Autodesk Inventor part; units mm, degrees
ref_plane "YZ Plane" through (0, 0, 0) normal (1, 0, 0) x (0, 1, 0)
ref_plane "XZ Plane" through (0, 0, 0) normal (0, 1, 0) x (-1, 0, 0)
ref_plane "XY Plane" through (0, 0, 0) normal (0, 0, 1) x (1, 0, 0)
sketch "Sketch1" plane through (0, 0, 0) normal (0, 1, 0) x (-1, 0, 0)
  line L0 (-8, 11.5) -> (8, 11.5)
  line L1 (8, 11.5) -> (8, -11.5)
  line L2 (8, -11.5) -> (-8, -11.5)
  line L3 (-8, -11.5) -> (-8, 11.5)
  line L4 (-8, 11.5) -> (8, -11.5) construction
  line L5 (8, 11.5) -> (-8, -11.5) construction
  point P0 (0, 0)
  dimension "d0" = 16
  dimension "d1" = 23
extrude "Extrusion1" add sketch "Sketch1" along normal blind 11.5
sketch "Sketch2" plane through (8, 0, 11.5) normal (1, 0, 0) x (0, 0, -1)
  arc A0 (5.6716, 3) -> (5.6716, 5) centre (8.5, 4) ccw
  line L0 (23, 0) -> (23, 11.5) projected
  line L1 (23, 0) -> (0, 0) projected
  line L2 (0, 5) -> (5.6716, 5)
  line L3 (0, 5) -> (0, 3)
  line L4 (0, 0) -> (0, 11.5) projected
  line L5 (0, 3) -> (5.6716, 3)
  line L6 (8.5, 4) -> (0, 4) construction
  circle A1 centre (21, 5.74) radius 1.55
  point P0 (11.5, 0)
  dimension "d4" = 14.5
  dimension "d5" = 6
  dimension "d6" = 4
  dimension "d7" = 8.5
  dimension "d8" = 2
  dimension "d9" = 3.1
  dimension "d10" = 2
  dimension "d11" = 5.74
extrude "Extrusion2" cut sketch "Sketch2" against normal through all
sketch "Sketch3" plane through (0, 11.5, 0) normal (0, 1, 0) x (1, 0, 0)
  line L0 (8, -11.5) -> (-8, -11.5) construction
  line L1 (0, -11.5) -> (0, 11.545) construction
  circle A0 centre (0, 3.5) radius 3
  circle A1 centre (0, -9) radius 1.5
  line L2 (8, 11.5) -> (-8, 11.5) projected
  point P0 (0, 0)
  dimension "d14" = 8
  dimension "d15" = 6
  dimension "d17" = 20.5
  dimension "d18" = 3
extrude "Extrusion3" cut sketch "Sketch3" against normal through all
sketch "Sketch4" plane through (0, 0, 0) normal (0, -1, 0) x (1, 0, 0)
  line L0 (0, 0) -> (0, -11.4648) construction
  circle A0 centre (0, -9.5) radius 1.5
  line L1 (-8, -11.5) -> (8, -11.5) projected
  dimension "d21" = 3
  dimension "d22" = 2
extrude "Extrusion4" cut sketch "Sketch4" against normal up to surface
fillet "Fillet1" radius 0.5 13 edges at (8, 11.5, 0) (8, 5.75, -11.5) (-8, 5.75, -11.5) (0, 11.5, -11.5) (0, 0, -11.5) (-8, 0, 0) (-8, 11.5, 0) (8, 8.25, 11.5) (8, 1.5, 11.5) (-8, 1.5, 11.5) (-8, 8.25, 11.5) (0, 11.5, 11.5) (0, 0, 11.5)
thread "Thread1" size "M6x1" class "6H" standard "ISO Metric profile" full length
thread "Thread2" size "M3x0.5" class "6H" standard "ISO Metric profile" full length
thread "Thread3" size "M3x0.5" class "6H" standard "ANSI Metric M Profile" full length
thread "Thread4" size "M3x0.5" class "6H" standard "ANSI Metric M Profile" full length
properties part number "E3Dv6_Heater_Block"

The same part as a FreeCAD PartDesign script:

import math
import FreeCAD as App
import Part
import Sketcher
from FreeCAD import Vector
Q = App.Units.Quantity


def edges_at(feature, points):
    """Names of the edges that pass closest to the given points."""
    edges = feature.Shape.Edges
    near = lambda p: min(range(len(edges)), key=lambda i: edges[i].distToShape(Part.Vertex(*p))[0])
    return sorted({f"Edge{near(p) + 1}" for p in points})

doc = App.newDocument("Part")
params = doc.addObject("Spreadsheet::Sheet", "Params")
for row, (alias, value) in enumerate([
    ("sketch1_width", "16 mm"),
    ("sketch1_height", "23 mm"),
    ("pad1_length", "11.5 mm"),
    ("sketch2_radius", "3 mm"),
    ("sketch2_diameter", "3.1 mm"),
    ("sketch2_width", "2 mm"),
    ("sketch3_diameter", "6 mm"),
    ("sketch3_diameter2", "3 mm"),
    ("sketch4_diameter", "3 mm"),
    ("fillet_radius", "0.5 mm"),
], start=1):
    params.set(f"A{row}", alias)
    params.set(f"B{row}", "=" + value)
    params.setAlias(f"B{row}", alias)

body = doc.addObject("PartDesign::Body", "Body")

sketch1 = body.newObject("Sketcher::SketchObject", "Sketch")
sketch1.AttachmentSupport = (doc.getObject("XZ_Plane"), [""])
sketch1.MapMode = "FlatFace"
sketch1.addGeometry([
    Part.LineSegment(Vector(-8, 12, 0), Vector(8, 12, 0)),
    Part.LineSegment(Vector(8, 12, 0), Vector(8, -12, 0)),
    Part.LineSegment(Vector(8, -12, 0), Vector(-8, -12, 0)),
    Part.LineSegment(Vector(-8, -12, 0), Vector(-8, 12, 0)),
], False)
sketch1.addConstraint([
    Sketcher.Constraint("Coincident", 0, 2, 1, 1),
    Sketcher.Constraint("Coincident", 1, 2, 2, 1),
    Sketcher.Constraint("Coincident", 2, 2, 3, 1),
    Sketcher.Constraint("Coincident", 3, 2, 0, 1),
    Sketcher.Constraint("Horizontal", 0),
    Sketcher.Constraint("Vertical", 1),
    Sketcher.Constraint("Horizontal", 2),
    Sketcher.Constraint("Vertical", 3),
    Sketcher.Constraint("Symmetric", 0, 2, 2, 2, -1, 1),
    Sketcher.Constraint("DistanceX", 0, 1, 0, 2, Q("16 mm")),
    Sketcher.Constraint("DistanceY", 1, 2, 1, 1, Q("23 mm")),
])
sketch1.setExpression("Constraints[9]", "Params.sketch1_width")
sketch1.setExpression("Constraints[10]", "Params.sketch1_height")
pad1 = body.newObject("PartDesign::Pad", "Pad")
pad1.Profile = sketch1
pad1.setExpression("Length", "Params.pad1_length")
pad1.Reversed = True

sketch2 = body.newObject("Sketcher::SketchObject", "Sketch001")
sketch2.AttachmentSupport = (doc.getObject("YZ_Plane"), [""])
sketch2.MapMode = "FlatFace"
sketch2.AttachmentOffset = App.Placement(Vector(0, 0, 8), App.Rotation())
sketch2.addGeometry([
    Part.LineSegment(Vector(3, 11.5, 0), Vector(3, 5.8, 0)),
    Part.ArcOfCircle(Part.Circle(Vector(4, 3, 0), Vector(0, 0, 1), 3), math.radians(109), math.radians(431)),
    Part.LineSegment(Vector(5, 5.8, 0), Vector(5, 11.5, 0)),
    Part.LineSegment(Vector(5, 11.5, 0), Vector(3, 11.5, 0)),
    Part.Circle(Vector(5.7, -9.5, 0), Vector(0, 0, 1), 1.6),
], False)
sketch2.addConstraint([
    Sketcher.Constraint("Coincident", 0, 2, 1, 1),
    Sketcher.Constraint("Coincident", 1, 2, 2, 1),
    Sketcher.Constraint("Coincident", 2, 2, 3, 1),
    Sketcher.Constraint("Coincident", 3, 2, 0, 1),
    Sketcher.Constraint("Vertical", 0),
    Sketcher.Constraint("Vertical", 2),
    Sketcher.Constraint("Horizontal", 3),
    Sketcher.Constraint("Horizontal", 0, 2, 1, 2),
    Sketcher.Constraint("Radius", 1, Q("3 mm")),
    Sketcher.Constraint("Diameter", 4, Q("3.1 mm")),
    Sketcher.Constraint("DistanceX", 3, 2, 3, 1, Q("2 mm")),
    Sketcher.Constraint("DistanceX", -1, 1, 1, 3, Q("4 mm")),
    Sketcher.Constraint("DistanceY", 1, 3, 2, 2, Q("8.5 mm")),
    Sketcher.Constraint("DistanceX", -1, 1, 4, 3, Q("5.74 mm")),
    Sketcher.Constraint("DistanceY", -1, 1, 1, 3, Q("3 mm")),
    Sketcher.Constraint("DistanceY", 4, 3, 2, 2, Q("21 mm")),
])
sketch2.setExpression("Constraints[8]", "Params.sketch2_radius")
sketch2.setExpression("Constraints[9]", "Params.sketch2_diameter")
sketch2.setExpression("Constraints[10]", "Params.sketch2_width")
pocket1 = body.newObject("PartDesign::Pocket", "Pocket")
pocket1.Profile = sketch2
pocket1.Type = "ThroughAll"

sketch3 = body.newObject("Sketcher::SketchObject", "Sketch002")
sketch3.AttachmentSupport = (doc.getObject("XZ_Plane"), [""])
sketch3.MapMode = "FlatFace"
sketch3.AttachmentOffset = App.Placement(Vector(0, 0, -11.5), App.Rotation())
sketch3.addGeometry([
    Part.Circle(Vector(0, -3.5, 0), Vector(0, 0, 1), 3),
    Part.Circle(Vector(0, 9, 0), Vector(0, 0, 1), 1.5),
], False)
sketch3.addConstraint([
    Sketcher.Constraint("PointOnObject", 0, 3, -2),
    Sketcher.Constraint("PointOnObject", 1, 3, -2),
    Sketcher.Constraint("Diameter", 0, Q("6 mm")),
    Sketcher.Constraint("Diameter", 1, Q("3 mm")),
    Sketcher.Constraint("DistanceY", -1, 1, 1, 3, Q("9 mm")),
    Sketcher.Constraint("DistanceY", 0, 3, -1, 1, Q("3.5 mm")),
])
sketch3.setExpression("Constraints[2]", "Params.sketch3_diameter")
sketch3.setExpression("Constraints[3]", "Params.sketch3_diameter2")
pocket2 = body.newObject("PartDesign::Pocket", "Pocket001")
pocket2.Profile = sketch3
pocket2.Type = "ThroughAll"
pocket2.Reversed = True

sketch4 = body.newObject("Sketcher::SketchObject", "Sketch003")
sketch4.AttachmentSupport = (doc.getObject("XZ_Plane"), [""])
sketch4.MapMode = "FlatFace"
sketch4.addGeometry(Part.Circle(Vector(0, -9.5, 0), Vector(0, 0, 1), 1.5), False)
sketch4.addConstraint([
    Sketcher.Constraint("PointOnObject", 0, 3, -2),
    Sketcher.Constraint("Diameter", 0, Q("3 mm")),
    Sketcher.Constraint("DistanceY", 0, 3, -1, 1, Q("9.5 mm")),
])
sketch4.setExpression("Constraints[1]", "Params.sketch4_diameter")
pocket3 = body.newObject("PartDesign::Pocket", "Pocket002")
pocket3.Profile = sketch4
pocket3.Type = "UpToFirst"
doc.recompute()

fillet = body.newObject("PartDesign::Fillet", "Fillet")
fillet.Base = (pocket3, edges_at(pocket3, [
    (8, 11.5, 0),
    (8, 5.75, -11.5),
    (-8, 5.75, -11.5),
    (0, 11.5, -11.5),
    (0, 0, -11.5),
    (-8, 0, 0),
    (-8, 11.5, 0),
    (8, 8.25, 11.5),
    (8, 1.5, 11.5),
    (-8, 1.5, 11.5),
    (-8, 8.25, 11.5),
    (0, 11.5, 11.5),
    (0, 0, 11.5),
]))
fillet.setExpression("Radius", "Params.fillet_radius")

doc.recompute()
